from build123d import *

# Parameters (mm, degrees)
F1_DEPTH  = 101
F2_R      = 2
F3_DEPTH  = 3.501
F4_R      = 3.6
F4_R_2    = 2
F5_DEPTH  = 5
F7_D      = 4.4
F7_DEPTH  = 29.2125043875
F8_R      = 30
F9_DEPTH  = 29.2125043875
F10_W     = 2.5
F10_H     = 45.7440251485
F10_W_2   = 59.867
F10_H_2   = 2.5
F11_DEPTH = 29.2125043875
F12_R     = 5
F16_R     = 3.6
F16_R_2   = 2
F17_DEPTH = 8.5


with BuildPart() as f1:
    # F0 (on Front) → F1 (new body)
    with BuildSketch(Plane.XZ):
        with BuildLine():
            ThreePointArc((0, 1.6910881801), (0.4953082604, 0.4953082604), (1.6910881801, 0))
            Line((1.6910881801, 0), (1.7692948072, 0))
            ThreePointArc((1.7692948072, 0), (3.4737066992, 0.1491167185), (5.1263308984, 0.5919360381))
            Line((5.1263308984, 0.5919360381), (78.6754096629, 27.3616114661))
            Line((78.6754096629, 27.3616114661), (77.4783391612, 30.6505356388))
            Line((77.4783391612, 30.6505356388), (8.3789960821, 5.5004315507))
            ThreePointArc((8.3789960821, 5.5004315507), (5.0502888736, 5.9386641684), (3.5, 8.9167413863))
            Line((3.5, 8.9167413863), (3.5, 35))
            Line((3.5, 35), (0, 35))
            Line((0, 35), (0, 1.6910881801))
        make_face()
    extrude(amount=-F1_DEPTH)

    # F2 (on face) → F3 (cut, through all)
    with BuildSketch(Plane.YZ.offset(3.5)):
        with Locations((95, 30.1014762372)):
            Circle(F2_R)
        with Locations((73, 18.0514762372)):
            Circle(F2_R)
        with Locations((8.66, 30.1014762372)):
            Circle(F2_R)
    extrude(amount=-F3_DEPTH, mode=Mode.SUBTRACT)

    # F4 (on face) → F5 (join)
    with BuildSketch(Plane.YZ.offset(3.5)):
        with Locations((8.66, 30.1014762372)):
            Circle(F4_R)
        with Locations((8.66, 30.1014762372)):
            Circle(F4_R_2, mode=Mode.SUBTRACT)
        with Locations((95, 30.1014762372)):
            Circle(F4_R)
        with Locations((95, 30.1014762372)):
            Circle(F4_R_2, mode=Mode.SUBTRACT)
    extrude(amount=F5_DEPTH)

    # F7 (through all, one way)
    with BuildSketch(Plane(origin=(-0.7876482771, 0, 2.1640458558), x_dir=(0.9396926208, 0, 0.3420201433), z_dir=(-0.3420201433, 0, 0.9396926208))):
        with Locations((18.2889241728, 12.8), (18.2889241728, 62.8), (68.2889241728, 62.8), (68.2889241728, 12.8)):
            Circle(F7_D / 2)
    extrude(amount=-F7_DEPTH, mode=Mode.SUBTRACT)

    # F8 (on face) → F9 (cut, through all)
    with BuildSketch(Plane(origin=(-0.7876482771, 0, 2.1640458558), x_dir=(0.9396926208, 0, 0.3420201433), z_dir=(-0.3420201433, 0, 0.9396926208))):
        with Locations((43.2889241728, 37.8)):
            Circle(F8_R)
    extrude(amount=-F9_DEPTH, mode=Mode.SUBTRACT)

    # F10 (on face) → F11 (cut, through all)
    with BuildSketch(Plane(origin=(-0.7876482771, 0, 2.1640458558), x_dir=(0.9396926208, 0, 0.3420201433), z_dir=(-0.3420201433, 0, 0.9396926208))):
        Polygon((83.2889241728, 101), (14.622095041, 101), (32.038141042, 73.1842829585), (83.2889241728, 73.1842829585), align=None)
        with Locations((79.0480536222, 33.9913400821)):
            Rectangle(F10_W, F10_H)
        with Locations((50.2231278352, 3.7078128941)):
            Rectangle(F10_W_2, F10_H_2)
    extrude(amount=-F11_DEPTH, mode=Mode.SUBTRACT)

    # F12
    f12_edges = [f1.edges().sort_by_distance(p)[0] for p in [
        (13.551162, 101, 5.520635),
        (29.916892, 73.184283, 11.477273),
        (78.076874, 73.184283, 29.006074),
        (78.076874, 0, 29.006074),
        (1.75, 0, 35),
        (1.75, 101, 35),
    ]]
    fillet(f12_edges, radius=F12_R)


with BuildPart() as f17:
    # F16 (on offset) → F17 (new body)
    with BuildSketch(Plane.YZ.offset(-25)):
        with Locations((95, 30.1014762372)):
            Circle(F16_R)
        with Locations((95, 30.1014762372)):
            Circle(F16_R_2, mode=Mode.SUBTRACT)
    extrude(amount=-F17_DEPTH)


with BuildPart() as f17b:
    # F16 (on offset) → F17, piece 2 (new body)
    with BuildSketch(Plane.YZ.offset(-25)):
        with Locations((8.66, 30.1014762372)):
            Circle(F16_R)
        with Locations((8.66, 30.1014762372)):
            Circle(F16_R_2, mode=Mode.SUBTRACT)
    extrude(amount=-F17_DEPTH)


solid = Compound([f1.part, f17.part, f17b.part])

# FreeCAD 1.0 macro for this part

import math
import FreeCAD as App
import Part
import Sketcher
from FreeCAD import Vector
Q = App.Units.Quantity


def edges_at(feature, points):
    """Names of the edges that pass closest to the given points."""
    edges = feature.Shape.Edges
    near = lambda p: min(range(len(edges)), key=lambda i: edges[i].distToShape(Part.Vertex(*p))[0])
    return sorted({f"Edge{near(p) + 1}" for p in points})

doc = App.newDocument("Part")
body = doc.addObject("PartDesign::Body", "Body")

sketch1 = body.newObject("Sketcher::SketchObject", "Sketch")
sketch1.AttachmentSupport = (doc.getObject("XZ_Plane"), [""])
sketch1.MapMode = "FlatFace"
sketch1.addGeometry(Part.ArcOfCircle(Part.Circle(Vector(1.69, 1.69, 0), Vector(0, 0, 1), 1.69), math.radians(180), math.radians(270)), False)
sketch1.addGeometry(Part.LineSegment(Vector(1.69, 0, 0), Vector(1.77, 0, 0)), False)
sketch1.addGeometry(Part.ArcOfCircle(Part.Circle(Vector(1.77, 9.82, 0), Vector(0, 0, 1), 9.82), math.radians(-90), math.radians(-70)), False)
sketch1.addGeometry(Part.LineSegment(Vector(5.13, 0.59, 0), Vector(78.68, 27.36, 0)), False)
sketch1.addGeometry(Part.LineSegment(Vector(78.68, 27.36, 0), Vector(77.48, 30.65, 0)), False)
sketch1.addGeometry(Part.LineSegment(Vector(77.48, 30.65, 0), Vector(8.38, 5.5, 0)), False)
sketch1.addGeometry(Part.ArcOfCircle(Part.Circle(Vector(7.14, 8.92, 0), Vector(0, 0, 1), 3.64), math.radians(180), math.radians(290)), False)
sketch1.addGeometry(Part.LineSegment(Vector(3.5, 8.92, 0), Vector(3.5, 35, 0)), False)
sketch1.addGeometry(Part.LineSegment(Vector(3.5, 35, 0), Vector(0, 35, 0)), False)
sketch1.addGeometry(Part.LineSegment(Vector(0, 35, 0), Vector(0, 1.69, 0)), False)
sketch1.addConstraint(Sketcher.Constraint("Tangent", 0, 2, 1, 1))
sketch1.addConstraint(Sketcher.Constraint("Tangent", 1, 2, 2, 1))
sketch1.addConstraint(Sketcher.Constraint("Tangent", 2, 2, 3, 1))
sketch1.addConstraint(Sketcher.Constraint("Coincident", 3, 2, 4, 1))
sketch1.addConstraint(Sketcher.Constraint("Coincident", 4, 2, 5, 1))
sketch1.addConstraint(Sketcher.Constraint("Tangent", 5, 2, 6, 2))
sketch1.addConstraint(Sketcher.Constraint("Tangent", 6, 1, 7, 1))
sketch1.addConstraint(Sketcher.Constraint("Coincident", 7, 2, 8, 1))
sketch1.addConstraint(Sketcher.Constraint("Coincident", 8, 2, 9, 1))
sketch1.addConstraint(Sketcher.Constraint("Tangent", 9, 2, 0, 1))
sketch1.addConstraint(Sketcher.Constraint("Horizontal", 1))
sketch1.addConstraint(Sketcher.Constraint("Vertical", 7))
sketch1.addConstraint(Sketcher.Constraint("Horizontal", 8))
sketch1.addConstraint(Sketcher.Constraint("Vertical", 9))
sketch1.addConstraint(Sketcher.Constraint("PointOnObject", 0, 2, -1))
sketch1.addConstraint(Sketcher.Constraint("PointOnObject", 8, 2, -2))
sketch1.addConstraint(Sketcher.Constraint("Perpendicular", 3, 4))
sketch1.addConstraint(Sketcher.Constraint("Perpendicular", 4, 5))
sketch1.addConstraint(Sketcher.Constraint("Angle", 3, Q("20 deg")))
sketch1.addConstraint(Sketcher.Constraint("DistanceX", 8, 2, 8, 1, Q("3.5 mm")))
sketch1.addConstraint(Sketcher.Constraint("DistanceY", -1, 1, 7, 2, Q("35 mm")))
sketch1.addConstraint(Sketcher.Constraint("Distance", 4, Q("3.5 mm")))
sketch1.addConstraint(Sketcher.Constraint("Radius", 0, Q("1.691088 mm")))
sketch1.addConstraint(Sketcher.Constraint("Radius", 6, Q("3.635561 mm")))
sketch1.addConstraint(Sketcher.Constraint("Radius", 2, Q("9.815317 mm")))
sketch1.addConstraint(Sketcher.Constraint("DistanceY", 7, 1, 7, 2, Q("26.083259 mm")))
sketch1.addConstraint(Sketcher.Constraint("DistanceY", 2, 2, 4, 2, Q("30.0586 mm")))
pad1 = body.newObject("PartDesign::Pad", "Pad")
pad1.Profile = sketch1
pad1.Length = 101
pad1.Reversed = True

sketch2 = body.newObject("Sketcher::SketchObject", "Sketch001")
sketch2.AttachmentSupport = (doc.getObject("YZ_Plane"), [""])
sketch2.MapMode = "FlatFace"
sketch2.AttachmentOffset = App.Placement(Vector(0, 0, 3.5), App.Rotation())
sketch2.addGeometry(Part.Circle(Vector(95, 30.1, 0), Vector(0, 0, 1), 2), False)
sketch2.addGeometry(Part.Circle(Vector(73, 18.1, 0), Vector(0, 0, 1), 2), False)
sketch2.addGeometry(Part.Circle(Vector(8.7, 30.1, 0), Vector(0, 0, 1), 2), False)
sketch2.addConstraint(Sketcher.Constraint("Equal", 0, 1))
sketch2.addConstraint(Sketcher.Constraint("Equal", 1, 2))
sketch2.addConstraint(Sketcher.Constraint("Horizontal", 0, 3, 2, 3))
sketch2.addConstraint(Sketcher.Constraint("Diameter", 0, Q("4 mm")))
sketch2.addConstraint(Sketcher.Constraint("DistanceX", -1, 1, 0, 3, Q("95 mm")))
sketch2.addConstraint(Sketcher.Constraint("DistanceX", -1, 1, 1, 3, Q("73 mm")))
sketch2.addConstraint(Sketcher.Constraint("DistanceX", -1, 1, 2, 3, Q("8.66 mm")))
sketch2.addConstraint(Sketcher.Constraint("DistanceY", 1, 3, 0, 3, Q("12.05 mm")))
sketch2.addConstraint(Sketcher.Constraint("DistanceY", -1, 1, 0, 3, Q("30.101476 mm")))
pocket1 = body.newObject("PartDesign::Pocket", "Pocket")
pocket1.Profile = sketch2
pocket1.Type = "ThroughAll"

sketch3 = body.newObject("Sketcher::SketchObject", "Sketch002")
sketch3.AttachmentSupport = (doc.getObject("YZ_Plane"), [""])
sketch3.MapMode = "FlatFace"
sketch3.AttachmentOffset = App.Placement(Vector(0, 0, 3.5), App.Rotation())
sketch3.addGeometry(Part.Circle(Vector(8.7, 30.1, 0), Vector(0, 0, 1), 3.6), False)
sketch3.addGeometry(Part.Circle(Vector(8.7, 30.1, 0), Vector(0, 0, 1), 2), False)
sketch3.addGeometry(Part.Circle(Vector(95, 30.1, 0), Vector(0, 0, 1), 3.6), False)
sketch3.addGeometry(Part.Circle(Vector(95, 30.1, 0), Vector(0, 0, 1), 2), False)
sketch3.addConstraint(Sketcher.Constraint("Coincident", 1, 3, 0, 3))
sketch3.addConstraint(Sketcher.Constraint("Coincident", 3, 3, 2, 3))
sketch3.addConstraint(Sketcher.Constraint("Equal", 0, 2))
sketch3.addConstraint(Sketcher.Constraint("Equal", 1, 3))
sketch3.addConstraint(Sketcher.Constraint("Horizontal", 1, 3, 2, 3))
sketch3.addConstraint(Sketcher.Constraint("Diameter", 1, Q("4 mm")))
sketch3.addConstraint(Sketcher.Constraint("Diameter", 0, Q("7.2 mm")))
sketch3.addConstraint(Sketcher.Constraint("DistanceX", -1, 1, 2, 3, Q("95 mm")))
sketch3.addConstraint(Sketcher.Constraint("DistanceX", -1, 1, 0, 3, Q("8.66 mm")))
sketch3.addConstraint(Sketcher.Constraint("DistanceY", -1, 1, 0, 3, Q("30.101476 mm")))
pad2 = body.newObject("PartDesign::Pad", "Pad001")
pad2.Profile = sketch3
pad2.Length = 5

sketch4 = body.newObject("Sketcher::SketchObject", "Sketch003")
sketch4.Placement = App.Placement(Vector(-0.787648, 0, 2.164046), App.Rotation(Vector(0.939692621, 0, 0.342020143), Vector(0, 1, 0), Vector(-0.342020143, 0, 0.939692621), "ZXY"))
sketch4.addGeometry(Part.Circle(Vector(68.3, 12.8, 0), Vector(0, 0, 1), 2.2), False)
sketch4.addGeometry(Part.Circle(Vector(18.3, 12.8, 0), Vector(0, 0, 1), 2.2), False)
sketch4.addGeometry(Part.Circle(Vector(18.3, 62.8, 0), Vector(0, 0, 1), 2.2), False)
sketch4.addGeometry(Part.Circle(Vector(68.3, 62.8, 0), Vector(0, 0, 1), 2.2), False)
sketch4.addConstraint(Sketcher.Constraint("Equal", 0, 1))
sketch4.addConstraint(Sketcher.Constraint("Equal", 1, 2))
sketch4.addConstraint(Sketcher.Constraint("Equal", 2, 3))
sketch4.addConstraint(Sketcher.Constraint("Horizontal", 0, 3, 1, 3))
sketch4.addConstraint(Sketcher.Constraint("Horizontal", 2, 3, 3, 3))
sketch4.addConstraint(Sketcher.Constraint("Vertical", 1, 3, 2, 3))
sketch4.addConstraint(Sketcher.Constraint("Vertical", 0, 3, 3, 3))
sketch4.addConstraint(Sketcher.Constraint("Diameter", 0, Q("4.4 mm")))
sketch4.addConstraint(Sketcher.Constraint("DistanceX", 1, 3, 0, 3, Q("50 mm")))
sketch4.addConstraint(Sketcher.Constraint("DistanceY", 1, 3, 2, 3, Q("50 mm")))
sketch4.addConstraint(Sketcher.Constraint("DistanceY", -1, 1, 0, 3, Q("12.8 mm")))
sketch4.addConstraint(Sketcher.Constraint("DistanceX", -1, 1, 0, 3, Q("68.288924 mm")))
pocket2 = body.newObject("PartDesign::Pocket", "Pocket001")
pocket2.Profile = sketch4
pocket2.Type = "ThroughAll"

sketch5 = body.newObject("Sketcher::SketchObject", "Sketch004")
sketch5.Placement = App.Placement(Vector(-0.787648, 0, 2.164046), App.Rotation(Vector(0.939692621, 0, 0.342020143), Vector(0, 1, 0), Vector(-0.342020143, 0, 0.939692621), "ZXY"))
sketch5.addGeometry(Part.Circle(Vector(43, 38, 0), Vector(0, 0, 1), 30), False)
sketch5.addConstraint(Sketcher.Constraint("Diameter", 0, Q("60 mm")))
sketch5.addConstraint(Sketcher.Constraint("DistanceY", -1, 1, 0, 3, Q("37.8 mm")))
sketch5.addConstraint(Sketcher.Constraint("DistanceX", -1, 1, 0, 3, Q("43.288924 mm")))
pocket3 = body.newObject("PartDesign::Pocket", "Pocket002")
pocket3.Profile = sketch5
pocket3.Type = "ThroughAll"

sketch6 = body.newObject("Sketcher::SketchObject", "Sketch005")
sketch6.Placement = App.Placement(Vector(-0.787648, 0, 2.164046), App.Rotation(Vector(0.939692621, 0, 0.342020143), Vector(0, 1, 0), Vector(-0.342020143, 0, 0.939692621), "ZXY"))
sketch6.addGeometry(Part.LineSegment(Vector(83.3, 101, 0), Vector(14.6, 101, 0)), False)
sketch6.addGeometry(Part.LineSegment(Vector(14.6, 101, 0), Vector(32, 73.2, 0)), False)
sketch6.addGeometry(Part.LineSegment(Vector(32, 73.2, 0), Vector(83.3, 73.2, 0)), False)
sketch6.addGeometry(Part.LineSegment(Vector(83.3, 73.2, 0), Vector(83.3, 101, 0)), False)
sketch6.addGeometry(Part.LineSegment(Vector(77.8, 56.9, 0), Vector(77.8, 11.1, 0)), False)
sketch6.addGeometry(Part.LineSegment(Vector(77.8, 11.1, 0), Vector(80.3, 11.1, 0)), False)
sketch6.addGeometry(Part.LineSegment(Vector(80.3, 11.1, 0), Vector(80.3, 56.9, 0)), False)
sketch6.addGeometry(Part.LineSegment(Vector(80.3, 56.9, 0), Vector(77.8, 56.9, 0)), False)
sketch6.addGeometry(Part.LineSegment(Vector(20.3, 5, 0), Vector(20.3, 2.5, 0)), False)
sketch6.addGeometry(Part.LineSegment(Vector(20.3, 2.5, 0), Vector(80.2, 2.5, 0)), False)
sketch6.addGeometry(Part.LineSegment(Vector(80.2, 2.5, 0), Vector(80.2, 5, 0)), False)
sketch6.addGeometry(Part.LineSegment(Vector(80.2, 5, 0), Vector(20.3, 5, 0)), False)
sketch6.addConstraint(Sketcher.Constraint("Coincident", 0, 2, 1, 1))
sketch6.addConstraint(Sketcher.Constraint("Coincident", 1, 2, 2, 1))
sketch6.addConstraint(Sketcher.Constraint("Coincident", 2, 2, 3, 1))
sketch6.addConstraint(Sketcher.Constraint("Coincident", 3, 2, 0, 1))
sketch6.addConstraint(Sketcher.Constraint("Coincident", 4, 2, 5, 1))
sketch6.addConstraint(Sketcher.Constraint("Coincident", 5, 2, 6, 1))
sketch6.addConstraint(Sketcher.Constraint("Coincident", 6, 2, 7, 1))
sketch6.addConstraint(Sketcher.Constraint("Coincident", 7, 2, 4, 1))
sketch6.addConstraint(Sketcher.Constraint("Coincident", 8, 2, 9, 1))
sketch6.addConstraint(Sketcher.Constraint("Coincident", 9, 2, 10, 1))
sketch6.addConstraint(Sketcher.Constraint("Coincident", 10, 2, 11, 1))
sketch6.addConstraint(Sketcher.Constraint("Coincident", 11, 2, 8, 1))
sketch6.addConstraint(Sketcher.Constraint("Horizontal", 0))
sketch6.addConstraint(Sketcher.Constraint("Horizontal", 2))
sketch6.addConstraint(Sketcher.Constraint("Vertical", 3))
sketch6.addConstraint(Sketcher.Constraint("Vertical", 4))
sketch6.addConstraint(Sketcher.Constraint("Horizontal", 5))
sketch6.addConstraint(Sketcher.Constraint("Vertical", 6))
sketch6.addConstraint(Sketcher.Constraint("Horizontal", 7))
sketch6.addConstraint(Sketcher.Constraint("Vertical", 8))
sketch6.addConstraint(Sketcher.Constraint("Horizontal", 9))
sketch6.addConstraint(Sketcher.Constraint("Vertical", 10))
sketch6.addConstraint(Sketcher.Constraint("Horizontal", 11))
sketch6.addConstraint(Sketcher.Constraint("Equal", 7, 8))
sketch6.addConstraint(Sketcher.Constraint("DistanceX", 5, 1, 5, 2, Q("2.5 mm")))
sketch6.addConstraint(Sketcher.Constraint("DistanceY", -1, 1, 0, 2, Q("101 mm")))
sketch6.addConstraint(Sketcher.Constraint("DistanceX", 9, 1, 9, 2, Q("59.867 mm")))
sketch6.addConstraint(Sketcher.Constraint("DistanceX", 0, 2, 0, 1, Q("68.666829 mm")))
sketch6.addConstraint(Sketcher.Constraint("DistanceX", 2, 1, 2, 2, Q("51.250783 mm")))
sketch6.addConstraint(Sketcher.Constraint("DistanceY", 3, 1, 3, 2, Q("27.815717 mm")))
sketch6.addConstraint(Sketcher.Constraint("DistanceY", 4, 2, 4, 1, Q("45.744025 mm")))
sketch6.addConstraint(Sketcher.Constraint("DistanceX", -1, 1, 1, 2, Q("32.038141 mm")))
sketch6.addConstraint(Sketcher.Constraint("DistanceX", 4, 2, 2, 2, Q("5.490871 mm")))
sketch6.addConstraint(Sketcher.Constraint("DistanceY", 6, 2, 2, 2, Q("16.32093 mm")))
sketch6.addConstraint(Sketcher.Constraint("DistanceY", 8, 2, 1, 2, Q("70.72647 mm")))
sketch6.addConstraint(Sketcher.Constraint("DistanceX", -1, 1, 8, 2, Q("20.289628 mm")))
pocket4 = body.newObject("PartDesign::Pocket", "Pocket003")
pocket4.Profile = sketch6
pocket4.Type = "ThroughAll"
doc.recompute()

fillet = body.newObject("PartDesign::Fillet", "Fillet")
fillet.Base = (pocket4, edges_at(pocket4, [
    (13.551, 101, 5.521),
    (29.917, 73.184, 11.477),
    (78.077, 73.184, 29.006),
    (78.077, 0, 29.006),
    (1.75, 0, 35),
    (1.75, 101, 35),
]))
fillet.Radius = 5
body2 = doc.addObject("PartDesign::Body", "Body001")

sketch7 = body2.newObject("Sketcher::SketchObject", "Sketch006")
sketch7.AttachmentSupport = (doc.getObject("YZ_Plane001"), [""])
sketch7.MapMode = "FlatFace"
sketch7.AttachmentOffset = App.Placement(Vector(0, 0, -25), App.Rotation())
sketch7.addGeometry(Part.Circle(Vector(95, 30.1, 0), Vector(0, 0, 1), 3.6), False)
sketch7.addGeometry(Part.Circle(Vector(95, 30.1, 0), Vector(0, 0, 1), 2), False)
sketch7.addConstraint(Sketcher.Constraint("Coincident", 1, 3, 0, 3))
sketch7.addConstraint(Sketcher.Constraint("Diameter", 1, Q("4 mm")))
sketch7.addConstraint(Sketcher.Constraint("Diameter", 0, Q("7.2 mm")))
sketch7.addConstraint(Sketcher.Constraint("DistanceX", -1, 1, 0, 3, Q("95 mm")))
sketch7.addConstraint(Sketcher.Constraint("DistanceY", -1, 1, 0, 3, Q("30.101476 mm")))
pad3 = body2.newObject("PartDesign::Pad", "Pad002")
pad3.Profile = sketch7
pad3.Length = 8.5
pad3.Reversed = True
body3 = doc.addObject("PartDesign::Body", "Body002")

sketch8 = body3.newObject("Sketcher::SketchObject", "Sketch007")
sketch8.AttachmentSupport = (doc.getObject("YZ_Plane002"), [""])
sketch8.MapMode = "FlatFace"
sketch8.AttachmentOffset = App.Placement(Vector(0, 0, -25), App.Rotation())
sketch8.addGeometry(Part.Circle(Vector(8.7, 30.1, 0), Vector(0, 0, 1), 3.6), False)
sketch8.addGeometry(Part.Circle(Vector(8.7, 30.1, 0), Vector(0, 0, 1), 2), False)
sketch8.addConstraint(Sketcher.Constraint("Coincident", 1, 3, 0, 3))
sketch8.addConstraint(Sketcher.Constraint("Diameter", 1, Q("4 mm")))
sketch8.addConstraint(Sketcher.Constraint("Diameter", 0, Q("7.2 mm")))
sketch8.addConstraint(Sketcher.Constraint("DistanceX", -1, 1, 0, 3, Q("8.66 mm")))
sketch8.addConstraint(Sketcher.Constraint("DistanceY", -1, 1, 0, 3, Q("30.101476 mm")))
pad4 = body3.newObject("PartDesign::Pad", "Pad003")
pad4.Profile = sketch8
pad4.Length = 8.5
pad4.Reversed = True

doc.recompute()
